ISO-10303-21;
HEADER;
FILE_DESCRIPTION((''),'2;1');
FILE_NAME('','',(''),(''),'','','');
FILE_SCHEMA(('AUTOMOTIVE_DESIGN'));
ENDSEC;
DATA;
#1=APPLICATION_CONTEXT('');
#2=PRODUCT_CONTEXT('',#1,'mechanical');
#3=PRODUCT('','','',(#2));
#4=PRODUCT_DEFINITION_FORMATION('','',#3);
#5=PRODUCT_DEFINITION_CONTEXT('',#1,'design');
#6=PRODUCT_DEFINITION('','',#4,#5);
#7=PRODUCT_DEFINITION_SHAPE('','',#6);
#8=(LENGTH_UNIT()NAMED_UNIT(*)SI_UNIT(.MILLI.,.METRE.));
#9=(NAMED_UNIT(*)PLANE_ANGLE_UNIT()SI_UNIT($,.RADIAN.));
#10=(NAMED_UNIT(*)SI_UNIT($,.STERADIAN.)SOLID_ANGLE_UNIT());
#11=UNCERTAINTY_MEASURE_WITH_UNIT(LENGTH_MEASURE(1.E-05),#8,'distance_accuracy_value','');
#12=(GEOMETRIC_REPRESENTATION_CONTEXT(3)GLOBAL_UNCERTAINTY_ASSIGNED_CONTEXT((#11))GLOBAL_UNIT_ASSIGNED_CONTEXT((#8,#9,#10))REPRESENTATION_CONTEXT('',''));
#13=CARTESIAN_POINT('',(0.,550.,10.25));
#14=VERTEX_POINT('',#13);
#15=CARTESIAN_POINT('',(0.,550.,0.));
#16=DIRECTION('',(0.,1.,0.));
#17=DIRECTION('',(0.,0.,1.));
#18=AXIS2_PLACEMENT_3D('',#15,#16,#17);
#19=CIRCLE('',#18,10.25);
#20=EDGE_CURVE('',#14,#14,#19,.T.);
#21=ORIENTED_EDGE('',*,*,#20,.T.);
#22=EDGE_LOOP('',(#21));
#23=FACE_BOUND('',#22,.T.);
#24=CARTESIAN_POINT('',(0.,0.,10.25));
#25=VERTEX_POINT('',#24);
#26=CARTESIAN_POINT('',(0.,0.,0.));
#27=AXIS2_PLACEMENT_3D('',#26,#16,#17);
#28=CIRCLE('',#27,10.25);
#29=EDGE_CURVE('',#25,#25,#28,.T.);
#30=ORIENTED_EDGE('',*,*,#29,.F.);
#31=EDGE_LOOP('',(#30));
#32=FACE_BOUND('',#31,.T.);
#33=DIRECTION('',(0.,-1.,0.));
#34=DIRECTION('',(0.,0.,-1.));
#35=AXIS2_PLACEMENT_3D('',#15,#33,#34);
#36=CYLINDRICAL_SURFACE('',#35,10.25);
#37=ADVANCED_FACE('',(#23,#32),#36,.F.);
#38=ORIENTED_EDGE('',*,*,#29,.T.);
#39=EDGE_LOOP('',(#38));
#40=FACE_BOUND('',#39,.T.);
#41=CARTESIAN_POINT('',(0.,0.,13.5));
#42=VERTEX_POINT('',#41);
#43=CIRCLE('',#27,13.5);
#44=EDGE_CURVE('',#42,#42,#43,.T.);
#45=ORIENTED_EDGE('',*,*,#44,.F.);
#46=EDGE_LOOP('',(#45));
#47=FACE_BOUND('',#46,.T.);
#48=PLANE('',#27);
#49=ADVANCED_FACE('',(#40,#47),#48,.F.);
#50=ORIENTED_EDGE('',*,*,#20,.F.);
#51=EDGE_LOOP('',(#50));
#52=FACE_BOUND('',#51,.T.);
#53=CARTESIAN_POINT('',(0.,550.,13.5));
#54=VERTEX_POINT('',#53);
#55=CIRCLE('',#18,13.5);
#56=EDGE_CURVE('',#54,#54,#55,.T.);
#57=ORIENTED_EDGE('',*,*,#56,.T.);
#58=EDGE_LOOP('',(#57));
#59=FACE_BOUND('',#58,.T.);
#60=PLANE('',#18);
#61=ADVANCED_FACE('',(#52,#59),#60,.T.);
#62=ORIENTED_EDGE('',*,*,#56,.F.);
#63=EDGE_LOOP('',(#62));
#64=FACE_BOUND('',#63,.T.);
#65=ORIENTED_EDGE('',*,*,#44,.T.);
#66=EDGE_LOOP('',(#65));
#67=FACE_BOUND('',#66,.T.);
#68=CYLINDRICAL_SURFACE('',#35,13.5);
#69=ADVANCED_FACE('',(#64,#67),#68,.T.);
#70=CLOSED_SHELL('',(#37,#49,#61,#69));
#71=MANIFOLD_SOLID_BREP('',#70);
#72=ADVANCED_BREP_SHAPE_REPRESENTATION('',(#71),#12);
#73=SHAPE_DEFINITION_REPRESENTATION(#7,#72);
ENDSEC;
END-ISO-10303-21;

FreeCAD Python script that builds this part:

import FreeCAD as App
import Part
import Sketcher

doc = App.newDocument("Part")
body = doc.addObject("PartDesign::Body", "Body")

sketch1 = body.newObject("Sketcher::SketchObject", "Sketch")
sketch1.AttachmentSupport = (doc.getObject("XZ_Plane"), [""])
sketch1.MapMode = "FlatFace"
sketch1.addGeometry([
    Part.Circle(App.Vector(0, 0, 0), App.Vector(0, 0, 1), 14),
    Part.Circle(App.Vector(0, 0, 0), App.Vector(0, 0, 1), 10),
], False)
sketch1.addConstraint([
    Sketcher.Constraint("Coincident", 0, 3, -1, 1),
    Sketcher.Constraint("Coincident", 1, 3, -1, 1),
    Sketcher.Constraint("Diameter", 0, 27.0),
    Sketcher.Constraint("Diameter", 1, 20.5),
])
pad1 = body.newObject("PartDesign::Pad", "Pad")
pad1.Profile = sketch1
pad1.Length = 550
pad1.Reversed = True

doc.recompute()
